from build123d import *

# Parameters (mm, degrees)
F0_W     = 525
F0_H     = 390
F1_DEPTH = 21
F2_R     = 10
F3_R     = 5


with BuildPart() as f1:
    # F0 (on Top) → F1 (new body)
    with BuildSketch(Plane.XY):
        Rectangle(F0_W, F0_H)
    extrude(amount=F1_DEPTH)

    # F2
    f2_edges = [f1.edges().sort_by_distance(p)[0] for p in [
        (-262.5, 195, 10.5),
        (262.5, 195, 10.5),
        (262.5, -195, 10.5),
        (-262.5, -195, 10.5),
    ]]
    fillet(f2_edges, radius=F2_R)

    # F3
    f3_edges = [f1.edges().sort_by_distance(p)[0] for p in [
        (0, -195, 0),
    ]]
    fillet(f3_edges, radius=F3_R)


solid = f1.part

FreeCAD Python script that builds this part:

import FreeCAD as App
import Part
import Sketcher


def edges_at(feature, points):
    """Names of the edges that pass closest to the given points."""
    edges = feature.Shape.Edges
    near = lambda p: min(range(len(edges)), key=lambda i: edges[i].distToShape(Part.Vertex(*p))[0])
    return sorted({f"Edge{near(p) + 1}" for p in points})

doc = App.newDocument("Part")
params = doc.addObject("Spreadsheet::Sheet", "Params")
for row, (alias, value) in enumerate([
    ("sketch1_width", "525 mm"),
    ("sketch1_height", "390 mm"),
    ("pad1_length", "21 mm"),
    ("fillet_radius", "10 mm"),
    ("fillet2_radius", "5 mm"),
], start=1):
    params.set(f"A{row}", alias)
    params.set(f"B{row}", "=" + value)
    params.setAlias(f"B{row}", alias)

body = doc.addObject("PartDesign::Body", "Body")

# Sketch on XY plane
sketch1 = doc.addObject("Sketcher::SketchObject", "Sketch")
body.addObject(sketch1)
sketch1.AttachmentSupport = (doc.XY_Plane, [""])
sketch1.MapMode = "FlatFace"
sketch1.addGeometry(Part.LineSegment(App.Vector(-262.5, 195, 0), App.Vector(-262.5, -195, 0)), False)
sketch1.addGeometry(Part.LineSegment(App.Vector(-262.5, -195, 0), App.Vector(262.5, -195, 0)), False)
sketch1.addGeometry(Part.LineSegment(App.Vector(262.5, -195, 0), App.Vector(262.5, 195, 0)), False)
sketch1.addGeometry(Part.LineSegment(App.Vector(262.5, 195, 0), App.Vector(-262.5, 195, 0)), False)
sketch1.addConstraint(Sketcher.Constraint("Coincident", 0, 2, 1, 1))
sketch1.addConstraint(Sketcher.Constraint("Coincident", 1, 2, 2, 1))
sketch1.addConstraint(Sketcher.Constraint("Coincident", 2, 2, 3, 1))
sketch1.addConstraint(Sketcher.Constraint("Coincident", 3, 2, 0, 1))
sketch1.addConstraint(Sketcher.Constraint("Vertical", 0))
sketch1.addConstraint(Sketcher.Constraint("Horizontal", 1))
sketch1.addConstraint(Sketcher.Constraint("Vertical", 2))
sketch1.addConstraint(Sketcher.Constraint("Horizontal", 3))
sketch1.addConstraint(Sketcher.Constraint("Symmetric", 0, 2, 2, 2, -1, 1))
sketch1.addConstraint(Sketcher.Constraint("DistanceX", 1, 1, 1, 2, 525.0))
sketch1.addConstraint(Sketcher.Constraint("DistanceY", 0, 2, 0, 1, 390.0))
sketch1.setExpression("Constraints[9]", "Params.sketch1_width")
sketch1.setExpression("Constraints[10]", "Params.sketch1_height")
pad1 = doc.addObject("PartDesign::Pad", "Pad")
body.addObject(pad1)
pad1.Profile = sketch1
pad1.setExpression("Length", "Params.pad1_length")
doc.recompute()

fillet = doc.addObject("PartDesign::Fillet", "Fillet")
body.addObject(fillet)
fillet.Base = (pad1, edges_at(pad1, [
    (-262.5, 195, 10.5),
    (262.5, 195, 10.5),
    (262.5, -195, 10.5),
    (-262.5, -195, 10.5),
]))
fillet.setExpression("Radius", "Params.fillet_radius")
doc.recompute()

fillet2 = doc.addObject("PartDesign::Fillet", "Fillet001")
body.addObject(fillet2)
fillet2.Base = (fillet, edges_at(fillet, [(0, -195, 0)]))
fillet2.setExpression("Radius", "Params.fillet2_radius")

doc.recompute()
